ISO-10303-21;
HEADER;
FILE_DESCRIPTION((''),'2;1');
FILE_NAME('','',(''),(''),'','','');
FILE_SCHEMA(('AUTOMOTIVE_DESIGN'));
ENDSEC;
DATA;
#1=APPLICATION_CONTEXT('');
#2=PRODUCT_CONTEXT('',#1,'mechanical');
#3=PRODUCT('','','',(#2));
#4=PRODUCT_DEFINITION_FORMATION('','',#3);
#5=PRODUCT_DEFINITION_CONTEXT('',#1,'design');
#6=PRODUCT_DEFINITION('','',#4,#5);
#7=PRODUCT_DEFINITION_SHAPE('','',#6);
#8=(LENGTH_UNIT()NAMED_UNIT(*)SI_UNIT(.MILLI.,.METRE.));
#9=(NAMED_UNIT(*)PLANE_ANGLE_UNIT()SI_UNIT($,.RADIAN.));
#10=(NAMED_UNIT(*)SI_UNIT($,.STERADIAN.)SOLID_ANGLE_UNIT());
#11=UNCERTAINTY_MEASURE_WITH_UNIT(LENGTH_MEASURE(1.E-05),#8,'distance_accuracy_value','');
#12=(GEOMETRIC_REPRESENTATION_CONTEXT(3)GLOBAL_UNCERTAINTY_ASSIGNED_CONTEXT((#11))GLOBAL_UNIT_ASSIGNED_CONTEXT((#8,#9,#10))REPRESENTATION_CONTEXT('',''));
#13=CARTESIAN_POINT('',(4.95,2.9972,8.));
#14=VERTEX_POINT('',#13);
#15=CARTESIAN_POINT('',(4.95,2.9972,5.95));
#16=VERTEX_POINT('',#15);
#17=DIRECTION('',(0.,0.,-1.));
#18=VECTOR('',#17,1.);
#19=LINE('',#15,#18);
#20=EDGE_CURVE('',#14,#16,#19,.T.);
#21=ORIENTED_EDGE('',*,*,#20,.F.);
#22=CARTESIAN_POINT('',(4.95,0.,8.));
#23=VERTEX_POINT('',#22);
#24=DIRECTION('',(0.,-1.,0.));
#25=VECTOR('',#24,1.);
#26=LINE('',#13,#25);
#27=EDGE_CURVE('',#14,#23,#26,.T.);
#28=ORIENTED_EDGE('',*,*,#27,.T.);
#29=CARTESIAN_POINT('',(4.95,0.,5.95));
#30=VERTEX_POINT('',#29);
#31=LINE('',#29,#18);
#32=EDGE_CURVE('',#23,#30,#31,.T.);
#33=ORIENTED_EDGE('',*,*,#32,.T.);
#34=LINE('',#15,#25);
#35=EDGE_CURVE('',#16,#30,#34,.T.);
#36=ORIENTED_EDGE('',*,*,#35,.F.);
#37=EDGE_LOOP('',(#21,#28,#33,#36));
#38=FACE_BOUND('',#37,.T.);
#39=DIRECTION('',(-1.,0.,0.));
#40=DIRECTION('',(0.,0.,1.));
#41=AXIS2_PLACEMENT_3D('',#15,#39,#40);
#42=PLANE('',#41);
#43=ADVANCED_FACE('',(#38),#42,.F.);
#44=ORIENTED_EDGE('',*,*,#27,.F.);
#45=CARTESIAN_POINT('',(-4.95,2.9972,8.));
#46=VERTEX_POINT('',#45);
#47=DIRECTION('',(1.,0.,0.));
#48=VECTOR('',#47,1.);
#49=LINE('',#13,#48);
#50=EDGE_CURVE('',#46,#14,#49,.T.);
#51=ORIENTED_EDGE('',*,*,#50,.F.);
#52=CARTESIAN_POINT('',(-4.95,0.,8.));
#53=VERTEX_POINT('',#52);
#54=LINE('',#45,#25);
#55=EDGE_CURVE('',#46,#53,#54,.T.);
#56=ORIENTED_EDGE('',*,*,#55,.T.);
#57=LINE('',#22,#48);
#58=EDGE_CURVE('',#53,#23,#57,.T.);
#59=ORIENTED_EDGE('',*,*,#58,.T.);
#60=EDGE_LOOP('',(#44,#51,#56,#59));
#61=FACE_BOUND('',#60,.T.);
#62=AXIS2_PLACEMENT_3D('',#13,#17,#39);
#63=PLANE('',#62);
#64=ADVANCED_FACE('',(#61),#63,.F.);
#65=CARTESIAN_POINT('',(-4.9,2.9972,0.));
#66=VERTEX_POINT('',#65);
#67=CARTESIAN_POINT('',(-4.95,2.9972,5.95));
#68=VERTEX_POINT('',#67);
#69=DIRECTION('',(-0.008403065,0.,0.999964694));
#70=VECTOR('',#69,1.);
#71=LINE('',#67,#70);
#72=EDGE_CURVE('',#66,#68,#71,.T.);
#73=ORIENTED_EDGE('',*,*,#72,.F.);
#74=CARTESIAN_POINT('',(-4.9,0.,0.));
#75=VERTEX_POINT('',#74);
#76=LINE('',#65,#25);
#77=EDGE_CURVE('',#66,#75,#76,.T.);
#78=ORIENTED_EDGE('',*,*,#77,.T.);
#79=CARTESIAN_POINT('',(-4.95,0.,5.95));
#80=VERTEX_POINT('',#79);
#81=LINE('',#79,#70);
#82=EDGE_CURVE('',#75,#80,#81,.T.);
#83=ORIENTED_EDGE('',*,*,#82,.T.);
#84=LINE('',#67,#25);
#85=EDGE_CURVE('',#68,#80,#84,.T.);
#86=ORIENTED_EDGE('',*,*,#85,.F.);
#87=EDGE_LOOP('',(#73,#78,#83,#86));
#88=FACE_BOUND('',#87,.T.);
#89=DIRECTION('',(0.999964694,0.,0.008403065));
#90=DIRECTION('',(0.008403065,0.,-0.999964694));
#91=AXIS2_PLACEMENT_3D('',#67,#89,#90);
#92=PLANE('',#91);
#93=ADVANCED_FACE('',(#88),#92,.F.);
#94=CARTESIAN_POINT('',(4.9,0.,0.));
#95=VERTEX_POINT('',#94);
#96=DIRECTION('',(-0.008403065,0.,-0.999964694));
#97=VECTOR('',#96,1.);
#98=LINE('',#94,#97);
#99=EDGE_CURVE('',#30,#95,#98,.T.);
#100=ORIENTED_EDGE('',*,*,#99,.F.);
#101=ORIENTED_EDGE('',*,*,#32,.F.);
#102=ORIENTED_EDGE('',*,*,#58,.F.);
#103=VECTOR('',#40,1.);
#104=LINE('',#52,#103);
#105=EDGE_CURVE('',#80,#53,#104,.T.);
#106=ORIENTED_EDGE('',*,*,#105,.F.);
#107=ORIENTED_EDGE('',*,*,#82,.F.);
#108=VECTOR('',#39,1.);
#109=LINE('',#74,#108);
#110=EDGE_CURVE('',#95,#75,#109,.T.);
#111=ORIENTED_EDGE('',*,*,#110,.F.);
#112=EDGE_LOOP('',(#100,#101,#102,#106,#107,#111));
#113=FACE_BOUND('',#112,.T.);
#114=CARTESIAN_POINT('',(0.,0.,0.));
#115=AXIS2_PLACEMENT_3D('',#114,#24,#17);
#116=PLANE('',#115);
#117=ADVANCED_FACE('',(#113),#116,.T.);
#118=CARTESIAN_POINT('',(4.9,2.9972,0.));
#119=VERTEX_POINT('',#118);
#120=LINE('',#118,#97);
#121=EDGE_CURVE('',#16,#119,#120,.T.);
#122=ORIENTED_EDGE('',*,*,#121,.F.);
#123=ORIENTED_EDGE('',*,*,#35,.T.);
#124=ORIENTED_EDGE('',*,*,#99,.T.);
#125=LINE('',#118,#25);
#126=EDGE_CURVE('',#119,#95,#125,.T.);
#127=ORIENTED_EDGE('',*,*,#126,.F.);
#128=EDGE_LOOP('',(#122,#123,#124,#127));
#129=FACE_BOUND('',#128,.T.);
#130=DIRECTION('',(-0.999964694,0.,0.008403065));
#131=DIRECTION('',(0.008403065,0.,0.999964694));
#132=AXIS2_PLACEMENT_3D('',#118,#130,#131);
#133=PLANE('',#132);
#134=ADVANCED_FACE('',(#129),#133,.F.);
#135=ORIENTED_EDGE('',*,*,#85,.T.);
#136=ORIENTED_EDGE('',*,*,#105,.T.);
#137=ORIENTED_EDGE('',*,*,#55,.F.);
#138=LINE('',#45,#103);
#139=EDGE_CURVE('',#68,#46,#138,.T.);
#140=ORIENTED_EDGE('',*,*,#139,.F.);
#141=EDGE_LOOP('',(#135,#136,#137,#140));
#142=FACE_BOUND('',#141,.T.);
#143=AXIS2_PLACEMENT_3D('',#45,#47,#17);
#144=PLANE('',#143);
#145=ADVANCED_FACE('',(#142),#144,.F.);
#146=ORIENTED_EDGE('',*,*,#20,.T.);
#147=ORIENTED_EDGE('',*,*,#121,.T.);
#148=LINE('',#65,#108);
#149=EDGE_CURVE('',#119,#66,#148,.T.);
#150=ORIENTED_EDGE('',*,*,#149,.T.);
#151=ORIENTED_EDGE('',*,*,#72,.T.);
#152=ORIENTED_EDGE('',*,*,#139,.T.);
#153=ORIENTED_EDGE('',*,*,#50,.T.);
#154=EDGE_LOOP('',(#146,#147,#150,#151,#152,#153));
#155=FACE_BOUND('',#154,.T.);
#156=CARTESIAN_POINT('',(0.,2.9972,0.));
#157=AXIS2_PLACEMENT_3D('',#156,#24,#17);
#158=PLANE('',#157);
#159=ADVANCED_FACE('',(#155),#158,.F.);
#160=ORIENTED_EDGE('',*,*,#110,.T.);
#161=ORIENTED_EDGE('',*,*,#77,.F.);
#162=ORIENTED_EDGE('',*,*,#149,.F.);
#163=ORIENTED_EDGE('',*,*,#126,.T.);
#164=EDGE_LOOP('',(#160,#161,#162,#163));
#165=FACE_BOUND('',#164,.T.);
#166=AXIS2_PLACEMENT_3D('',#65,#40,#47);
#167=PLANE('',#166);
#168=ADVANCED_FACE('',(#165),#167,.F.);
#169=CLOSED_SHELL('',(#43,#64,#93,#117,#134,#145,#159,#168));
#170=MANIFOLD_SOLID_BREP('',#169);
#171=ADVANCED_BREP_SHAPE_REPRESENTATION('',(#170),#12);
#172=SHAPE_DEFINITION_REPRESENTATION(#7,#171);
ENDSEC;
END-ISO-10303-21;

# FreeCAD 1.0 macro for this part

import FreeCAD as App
import Part
import Sketcher
Q = App.Units.Quantity


def add_polygon(sketch, points):
    """Adds a closed chain of lines whose ends are joined by coincident constraints."""
    first, n = sketch.GeometryCount, len(points)
    for a, b in zip(points, points[1:] + points[:1]):
        sketch.addGeometry(Part.LineSegment(App.Vector(*a, 0), App.Vector(*b, 0)), False)
    for i in range(n):
        sketch.addConstraint(Sketcher.Constraint("Coincident", first + i, 2, first + (i + 1) % n, 1))

doc = App.newDocument("Part")
body = doc.addObject("PartDesign::Body", "Body")

# Sketch on XZ plane
sketch1 = doc.addObject("Sketcher::SketchObject", "Sketch")
body.addObject(sketch1)
sketch1.AttachmentSupport = (doc.XZ_Plane, [""])
sketch1.MapMode = "FlatFace"
add_polygon(sketch1, [(4.9, 0), (-4.9, 0), (-5, 6), (-5, 8), (5, 8), (5, 6)])  # lines 0-5
sketch1.addConstraint(Sketcher.Constraint("Horizontal", 0))
sketch1.addConstraint(Sketcher.Constraint("Vertical", 2))
sketch1.addConstraint(Sketcher.Constraint("Horizontal", 3))
sketch1.addConstraint(Sketcher.Constraint("Vertical", 4))
sketch1.addConstraint(Sketcher.Constraint("Symmetric", 0, 2, 5, 2, -1, 1))
sketch1.addConstraint(Sketcher.Constraint("Symmetric", 1, 2, 4, 2, -2))
sketch1.addConstraint(Sketcher.Constraint("DistanceX", 0, 2, 0, 1, Q("9.8 mm")))
sketch1.addConstraint(Sketcher.Constraint("DistanceX", 3, 1, 3, 2, Q("9.9 mm")))
sketch1.addConstraint(Sketcher.Constraint("DistanceY", -1, 1, 2, 2, Q("8 mm")))
sketch1.addConstraint(Sketcher.Constraint("DistanceY", 2, 1, 2, 2, Q("2.05 mm")))
pad1 = doc.addObject("PartDesign::Pad", "Pad")
body.addObject(pad1)
pad1.Profile = sketch1
pad1.Length = 2.9972
pad1.Reversed = True

doc.recompute()
